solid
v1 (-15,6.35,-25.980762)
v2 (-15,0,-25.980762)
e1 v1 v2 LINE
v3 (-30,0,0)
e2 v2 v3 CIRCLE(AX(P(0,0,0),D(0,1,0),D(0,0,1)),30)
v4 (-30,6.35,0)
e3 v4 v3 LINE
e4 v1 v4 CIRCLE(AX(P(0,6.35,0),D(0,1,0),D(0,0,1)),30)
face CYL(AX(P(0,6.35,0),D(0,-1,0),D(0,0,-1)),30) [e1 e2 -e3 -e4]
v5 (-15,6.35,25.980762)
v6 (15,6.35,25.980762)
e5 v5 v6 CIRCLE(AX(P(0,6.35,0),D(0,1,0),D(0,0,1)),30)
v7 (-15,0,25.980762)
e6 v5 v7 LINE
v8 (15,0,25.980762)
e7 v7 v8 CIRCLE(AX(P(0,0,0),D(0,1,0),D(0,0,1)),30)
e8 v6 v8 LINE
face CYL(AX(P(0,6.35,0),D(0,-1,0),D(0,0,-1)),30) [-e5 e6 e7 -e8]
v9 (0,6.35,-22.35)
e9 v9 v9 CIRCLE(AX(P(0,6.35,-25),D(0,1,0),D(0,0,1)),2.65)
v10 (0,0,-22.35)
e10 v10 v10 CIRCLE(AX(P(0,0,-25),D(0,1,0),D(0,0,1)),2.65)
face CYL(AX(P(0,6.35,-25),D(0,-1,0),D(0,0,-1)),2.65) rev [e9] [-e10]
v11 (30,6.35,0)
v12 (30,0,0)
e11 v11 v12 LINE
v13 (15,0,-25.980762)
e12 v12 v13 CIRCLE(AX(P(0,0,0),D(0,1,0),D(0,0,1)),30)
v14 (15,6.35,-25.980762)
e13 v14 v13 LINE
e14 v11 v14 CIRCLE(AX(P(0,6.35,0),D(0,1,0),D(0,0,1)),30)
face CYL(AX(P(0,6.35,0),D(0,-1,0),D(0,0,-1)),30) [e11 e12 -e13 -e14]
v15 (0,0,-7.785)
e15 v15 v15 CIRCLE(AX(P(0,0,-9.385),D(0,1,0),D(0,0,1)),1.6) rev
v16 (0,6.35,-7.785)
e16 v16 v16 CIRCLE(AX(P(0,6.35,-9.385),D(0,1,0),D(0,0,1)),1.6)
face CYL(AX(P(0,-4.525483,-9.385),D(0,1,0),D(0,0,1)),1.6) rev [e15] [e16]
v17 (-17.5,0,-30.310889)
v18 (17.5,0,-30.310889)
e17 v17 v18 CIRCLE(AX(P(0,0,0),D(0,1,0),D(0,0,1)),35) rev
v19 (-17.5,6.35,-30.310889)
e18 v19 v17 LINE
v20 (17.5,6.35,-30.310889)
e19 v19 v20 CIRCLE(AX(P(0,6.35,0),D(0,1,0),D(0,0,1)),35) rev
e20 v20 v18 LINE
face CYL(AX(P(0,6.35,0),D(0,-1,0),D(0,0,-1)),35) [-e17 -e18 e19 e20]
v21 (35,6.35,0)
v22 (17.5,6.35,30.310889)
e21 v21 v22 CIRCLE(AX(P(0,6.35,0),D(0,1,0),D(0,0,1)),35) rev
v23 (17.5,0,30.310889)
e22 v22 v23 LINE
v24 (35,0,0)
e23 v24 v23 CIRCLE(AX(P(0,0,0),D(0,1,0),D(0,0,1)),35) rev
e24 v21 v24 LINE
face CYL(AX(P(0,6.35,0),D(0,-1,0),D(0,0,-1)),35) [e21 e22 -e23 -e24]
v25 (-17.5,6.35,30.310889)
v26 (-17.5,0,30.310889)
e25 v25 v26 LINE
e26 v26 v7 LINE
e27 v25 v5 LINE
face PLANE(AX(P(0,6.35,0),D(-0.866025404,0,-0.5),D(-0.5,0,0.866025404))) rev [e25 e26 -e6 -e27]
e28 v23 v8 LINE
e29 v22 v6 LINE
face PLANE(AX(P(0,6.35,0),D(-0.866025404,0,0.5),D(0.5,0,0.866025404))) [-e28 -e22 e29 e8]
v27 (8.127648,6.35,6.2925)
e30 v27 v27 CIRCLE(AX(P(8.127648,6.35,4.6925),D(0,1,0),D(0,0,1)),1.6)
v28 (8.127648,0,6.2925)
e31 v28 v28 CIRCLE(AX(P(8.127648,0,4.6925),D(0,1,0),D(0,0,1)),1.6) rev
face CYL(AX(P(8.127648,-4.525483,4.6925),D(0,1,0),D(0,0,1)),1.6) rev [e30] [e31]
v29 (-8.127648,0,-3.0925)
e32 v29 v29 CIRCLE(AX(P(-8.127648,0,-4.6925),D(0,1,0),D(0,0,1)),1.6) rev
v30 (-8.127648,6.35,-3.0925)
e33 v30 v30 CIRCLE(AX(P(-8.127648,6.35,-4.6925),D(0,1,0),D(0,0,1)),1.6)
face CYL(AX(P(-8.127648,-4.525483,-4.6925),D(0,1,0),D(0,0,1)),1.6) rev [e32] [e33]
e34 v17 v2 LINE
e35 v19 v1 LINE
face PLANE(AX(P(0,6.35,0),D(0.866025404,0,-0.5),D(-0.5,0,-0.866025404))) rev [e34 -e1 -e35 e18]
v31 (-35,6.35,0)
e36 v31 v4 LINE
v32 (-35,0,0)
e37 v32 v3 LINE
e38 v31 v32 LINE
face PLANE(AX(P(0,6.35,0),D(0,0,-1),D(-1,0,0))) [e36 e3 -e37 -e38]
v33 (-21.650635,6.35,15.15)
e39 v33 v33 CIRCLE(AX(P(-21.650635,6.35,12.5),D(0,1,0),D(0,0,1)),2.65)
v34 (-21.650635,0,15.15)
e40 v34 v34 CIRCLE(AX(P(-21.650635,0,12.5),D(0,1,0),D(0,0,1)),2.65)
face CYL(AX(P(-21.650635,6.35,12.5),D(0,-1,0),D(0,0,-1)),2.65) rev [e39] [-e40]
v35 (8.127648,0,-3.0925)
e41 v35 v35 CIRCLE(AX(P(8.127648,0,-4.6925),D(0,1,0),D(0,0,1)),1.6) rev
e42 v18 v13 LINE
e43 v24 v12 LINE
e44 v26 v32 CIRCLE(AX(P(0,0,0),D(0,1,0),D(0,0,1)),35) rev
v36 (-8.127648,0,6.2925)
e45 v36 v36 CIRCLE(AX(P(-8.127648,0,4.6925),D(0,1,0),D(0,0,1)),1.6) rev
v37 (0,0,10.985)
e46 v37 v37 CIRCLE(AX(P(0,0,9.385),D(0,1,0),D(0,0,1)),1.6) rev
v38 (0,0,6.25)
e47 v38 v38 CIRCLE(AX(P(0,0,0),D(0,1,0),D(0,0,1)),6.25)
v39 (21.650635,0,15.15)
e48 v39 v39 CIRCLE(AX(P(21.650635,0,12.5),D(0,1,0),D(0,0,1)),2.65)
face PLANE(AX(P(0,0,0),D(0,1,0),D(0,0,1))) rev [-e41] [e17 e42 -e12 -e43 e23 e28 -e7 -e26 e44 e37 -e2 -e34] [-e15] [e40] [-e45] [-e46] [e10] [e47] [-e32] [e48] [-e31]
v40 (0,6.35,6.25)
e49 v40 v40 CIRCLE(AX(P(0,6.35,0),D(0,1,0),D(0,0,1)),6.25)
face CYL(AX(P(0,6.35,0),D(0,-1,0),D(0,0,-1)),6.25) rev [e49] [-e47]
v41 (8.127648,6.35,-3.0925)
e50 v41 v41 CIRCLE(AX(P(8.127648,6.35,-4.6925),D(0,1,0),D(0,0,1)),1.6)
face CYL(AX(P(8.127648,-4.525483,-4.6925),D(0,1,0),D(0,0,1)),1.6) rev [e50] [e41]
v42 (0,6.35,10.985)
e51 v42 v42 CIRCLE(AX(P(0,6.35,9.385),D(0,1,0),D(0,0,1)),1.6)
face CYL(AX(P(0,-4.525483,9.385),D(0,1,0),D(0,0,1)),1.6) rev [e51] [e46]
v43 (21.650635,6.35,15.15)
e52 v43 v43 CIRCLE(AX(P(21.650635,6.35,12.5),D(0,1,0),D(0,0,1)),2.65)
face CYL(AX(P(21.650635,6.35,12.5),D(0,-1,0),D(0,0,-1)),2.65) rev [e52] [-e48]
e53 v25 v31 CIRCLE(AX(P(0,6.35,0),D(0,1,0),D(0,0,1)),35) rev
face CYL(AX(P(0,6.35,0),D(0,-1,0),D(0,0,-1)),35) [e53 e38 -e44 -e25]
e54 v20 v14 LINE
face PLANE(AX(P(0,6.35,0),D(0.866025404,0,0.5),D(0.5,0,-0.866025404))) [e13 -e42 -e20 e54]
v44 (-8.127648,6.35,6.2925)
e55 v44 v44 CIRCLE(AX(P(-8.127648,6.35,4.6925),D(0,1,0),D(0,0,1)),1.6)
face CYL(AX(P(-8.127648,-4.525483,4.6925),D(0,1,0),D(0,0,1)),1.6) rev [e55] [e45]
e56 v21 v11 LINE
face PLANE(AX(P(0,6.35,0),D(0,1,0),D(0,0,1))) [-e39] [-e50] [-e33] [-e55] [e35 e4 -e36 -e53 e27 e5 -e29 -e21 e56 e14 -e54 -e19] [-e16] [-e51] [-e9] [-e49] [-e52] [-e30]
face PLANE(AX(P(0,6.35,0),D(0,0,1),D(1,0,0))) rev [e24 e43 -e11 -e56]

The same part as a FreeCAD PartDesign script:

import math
import FreeCAD as App
import Part
import Sketcher
from FreeCAD import Vector
Q = App.Units.Quantity

doc = App.newDocument("Part")
body = doc.addObject("PartDesign::Body", "Body")

# Sketch on XZ plane
sketch1 = body.newObject("Sketcher::SketchObject", "Sketch")
sketch1.AttachmentSupport = (doc.getObject("XZ_Plane"), [""])
sketch1.MapMode = "FlatFace"
sketch1.addGeometry([
    Part.ArcOfCircle(Part.Circle(Vector(0, 0, 0), Vector(0, 0, 1), 35), math.radians(-120), math.radians(-60)),  # 0
    Part.LineSegment(Vector(-17.5, -30.3, 0), Vector(-15, -26, 0)),  # 1
    Part.ArcOfCircle(Part.Circle(Vector(0, 0, 0), Vector(0, 0, 1), 30), math.radians(180), math.radians(240)),  # 2
    Part.LineSegment(Vector(-30, 0, 0), Vector(-35, 0, 0)),  # 3
    Part.ArcOfCircle(Part.Circle(Vector(0, 0, 0), Vector(0, 0, 1), 35), math.radians(120), math.radians(180)),  # 4
    Part.LineSegment(Vector(-17.5, 30.3, 0), Vector(-15, 26, 0)),  # 5
    Part.ArcOfCircle(Part.Circle(Vector(0, 0, 0), Vector(0, 0, 1), 30), math.radians(60), math.radians(120)),  # 6
    Part.LineSegment(Vector(15, 26, 0), Vector(17.5, 30.3, 0)),  # 7
    Part.ArcOfCircle(Part.Circle(Vector(0, 0, 0), Vector(0, 0, 1), 35), math.radians(0), math.radians(60)),  # 8
    Part.LineSegment(Vector(35, 0, 0), Vector(30, 0, 0)),  # 9
    Part.ArcOfCircle(Part.Circle(Vector(0, 0, 0), Vector(0, 0, 1), 30), math.radians(-60), math.radians(0)),  # 10
    Part.LineSegment(Vector(15, -26, 0), Vector(17.5, -30.3, 0)),  # 11
    Part.Circle(Vector(-21.7, 12.5, 0), Vector(0, 0, 1), 2.6),  # 12
    Part.Circle(Vector(21.7, 12.5, 0), Vector(0, 0, 1), 2.6),  # 13
    Part.Circle(Vector(0, 0, 0), Vector(0, 0, 1), 6.2),  # 14
    Part.Circle(Vector(0, -25, 0), Vector(0, 0, 1), 2.6),  # 15
], False)
sketch1.addConstraint([
    Sketcher.Constraint("Coincident", 0, 1, 1, 1),
    Sketcher.Constraint("Coincident", 1, 2, 2, 2),
    Sketcher.Constraint("Coincident", 2, 1, 3, 1),
    Sketcher.Constraint("Coincident", 3, 2, 4, 2),
    Sketcher.Constraint("Coincident", 4, 1, 5, 1),
    Sketcher.Constraint("Coincident", 5, 2, 6, 2),
    Sketcher.Constraint("Coincident", 6, 1, 7, 1),
    Sketcher.Constraint("Coincident", 7, 2, 8, 2),
    Sketcher.Constraint("Coincident", 8, 1, 9, 1),
    Sketcher.Constraint("Coincident", 9, 2, 10, 2),
    Sketcher.Constraint("Coincident", 10, 1, 11, 1),
    Sketcher.Constraint("Coincident", 11, 2, 0, 2),
    Sketcher.Constraint("Horizontal", 3),
    Sketcher.Constraint("Horizontal", 9),
    Sketcher.Constraint("Coincident", 0, 3, -1, 1),
    Sketcher.Constraint("Coincident", 2, 3, -1, 1),
    Sketcher.Constraint("Coincident", 4, 3, -1, 1),
    Sketcher.Constraint("Coincident", 6, 3, -1, 1),
    Sketcher.Constraint("Coincident", 8, 3, -1, 1),
    Sketcher.Constraint("Coincident", 10, 3, -1, 1),
    Sketcher.Constraint("Coincident", 14, 3, -1, 1),
    Sketcher.Constraint("Equal", 0, 4),
    Sketcher.Constraint("Equal", 2, 6),
    Sketcher.Constraint("Equal", 4, 8),
    Sketcher.Constraint("Equal", 6, 10),
    Sketcher.Constraint("Equal", 12, 13),
    Sketcher.Constraint("Equal", 13, 15),
    Sketcher.Constraint("Symmetric", 12, 3, 13, 3, -2),
    Sketcher.Constraint("PointOnObject", 15, 3, -2),
    Sketcher.Constraint("PointOnObject", 2, 1, -1),
    Sketcher.Constraint("PointOnObject", 8, 1, -1),
    Sketcher.Constraint("Parallel", 1, 7),
    Sketcher.Constraint("Parallel", 5, 11),
    Sketcher.Constraint("Horizontal", 5, 2, 6, 1),
    Sketcher.Constraint("Horizontal", 4, 1, 7, 2),
    Sketcher.Constraint("Horizontal", 1, 2, 10, 1),
    Sketcher.Constraint("Vertical", 0, 1, 4, 1),
    Sketcher.Constraint("Radius", 0, 35.0),
    Sketcher.Constraint("Radius", 2, 30.0),
    Sketcher.Constraint("Diameter", 12, 5.3),
    Sketcher.Constraint("Diameter", 14, 12.5),
    Sketcher.Constraint("Angle", 1, Q("60 deg")),
    Sketcher.Constraint("DistanceY", 15, 3, -1, 1, 25.0),
    Sketcher.Constraint("DistanceX", 1, 2, -1, 1, 15.0),
    Sketcher.Constraint("DistanceY", -1, 1, 12, 3, 12.5),
    Sketcher.Constraint("DistanceX", 12, 3, -1, 1, 21.650635),
])
pad1 = body.newObject("PartDesign::Pad", "Pad")
pad1.Profile = sketch1
pad1.Length = 6.35
pad1.Reversed = True

# Sketch on XZ plane
sketch2 = body.newObject("Sketcher::SketchObject", "Sketch001")
sketch2.AttachmentSupport = (doc.getObject("XZ_Plane"), [""])
sketch2.MapMode = "FlatFace"
sketch2.AttachmentOffset = App.Placement(Vector(0, 0, -6.35), App.Rotation())
sketch2.addGeometry([
    Part.Circle(Vector(-8.1, 4.7, 0), Vector(0, 0, 1), 1.6),  # 0
    Part.Circle(Vector(0, 9.4, 0), Vector(0, 0, 1), 1.6),  # 1
    Part.Circle(Vector(-8.1, -4.7, 0), Vector(0, 0, 1), 1.6),  # 2
    Part.Circle(Vector(0, -9.4, 0), Vector(0, 0, 1), 1.6),  # 3
    Part.Circle(Vector(8.1, -4.7, 0), Vector(0, 0, 1), 1.6),  # 4
    Part.Circle(Vector(8.1, 4.7, 0), Vector(0, 0, 1), 1.6),  # 5
], False)
sketch2.addConstraint([
    Sketcher.Constraint("Equal", 0, 1),
    Sketcher.Constraint("Equal", 1, 2),
    Sketcher.Constraint("Equal", 2, 3),
    Sketcher.Constraint("Equal", 3, 4),
    Sketcher.Constraint("Equal", 4, 5),
    Sketcher.Constraint("Symmetric", 1, 3, 3, 3, -1, 1),
    Sketcher.Constraint("Symmetric", 0, 3, 4, 3, -1, 1),
    Sketcher.Constraint("Symmetric", 2, 3, 5, 3, -1, 1),
    Sketcher.Constraint("Symmetric", 2, 3, 4, 3, -2),
    Sketcher.Constraint("PointOnObject", 1, 3, -2),
    Sketcher.Constraint("Diameter", 0, 3.2),
    Sketcher.Constraint("DistanceY", 3, 3, 1, 3, 18.77),
    Sketcher.Constraint("DistanceY", 2, 3, 0, 3, 9.385),
    Sketcher.Constraint("DistanceX", 0, 3, -1, 1, 8.127648),
])
pocket1 = body.newObject("PartDesign::Pocket", "Pocket")
pocket1.Profile = sketch2
pocket1.Length = 6.35
pocket1.Reversed = True

doc.recompute()
